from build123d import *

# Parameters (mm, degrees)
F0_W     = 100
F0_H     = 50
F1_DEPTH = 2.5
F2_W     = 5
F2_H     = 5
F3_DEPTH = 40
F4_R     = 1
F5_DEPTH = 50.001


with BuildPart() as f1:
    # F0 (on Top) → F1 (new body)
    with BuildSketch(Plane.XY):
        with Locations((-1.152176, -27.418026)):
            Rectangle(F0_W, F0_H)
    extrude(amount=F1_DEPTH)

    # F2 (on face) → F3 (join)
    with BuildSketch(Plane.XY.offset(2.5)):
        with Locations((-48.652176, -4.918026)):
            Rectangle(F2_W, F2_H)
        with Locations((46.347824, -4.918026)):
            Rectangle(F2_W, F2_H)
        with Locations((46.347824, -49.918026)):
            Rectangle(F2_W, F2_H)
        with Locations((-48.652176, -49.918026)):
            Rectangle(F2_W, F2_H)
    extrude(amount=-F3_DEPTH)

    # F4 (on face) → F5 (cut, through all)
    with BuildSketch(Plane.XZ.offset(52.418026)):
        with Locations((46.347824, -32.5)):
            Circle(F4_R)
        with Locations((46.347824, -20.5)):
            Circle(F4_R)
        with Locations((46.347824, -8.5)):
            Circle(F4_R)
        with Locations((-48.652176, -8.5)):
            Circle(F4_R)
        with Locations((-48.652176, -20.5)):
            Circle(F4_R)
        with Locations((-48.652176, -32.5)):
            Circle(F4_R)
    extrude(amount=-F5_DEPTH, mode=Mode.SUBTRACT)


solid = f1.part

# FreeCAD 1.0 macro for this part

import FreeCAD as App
import Part
import Sketcher
from FreeCAD import Vector
Q = App.Units.Quantity

doc = App.newDocument("Part")
body = doc.addObject("PartDesign::Body", "Body")

# Sketch on XY plane
sketch1 = body.newObject("Sketcher::SketchObject", "Sketch")
sketch1.AttachmentSupport = (doc.getObject("XY_Plane"), [""])
sketch1.MapMode = "FlatFace"
sketch1.addGeometry(Part.LineSegment(Vector(-51, -2, 0), Vector(-51, -52, 0)), False)
sketch1.addGeometry(Part.LineSegment(Vector(-51, -52, 0), Vector(49, -52, 0)), False)
sketch1.addGeometry(Part.LineSegment(Vector(49, -52, 0), Vector(49, -2, 0)), False)
sketch1.addGeometry(Part.LineSegment(Vector(49, -2, 0), Vector(-51, -2, 0)), False)
sketch1.addConstraint(Sketcher.Constraint("Coincident", 0, 2, 1, 1))
sketch1.addConstraint(Sketcher.Constraint("Coincident", 1, 2, 2, 1))
sketch1.addConstraint(Sketcher.Constraint("Coincident", 2, 2, 3, 1))
sketch1.addConstraint(Sketcher.Constraint("Coincident", 3, 2, 0, 1))
sketch1.addConstraint(Sketcher.Constraint("Vertical", 0))
sketch1.addConstraint(Sketcher.Constraint("Horizontal", 1))
sketch1.addConstraint(Sketcher.Constraint("Vertical", 2))
sketch1.addConstraint(Sketcher.Constraint("Horizontal", 3))
sketch1.addConstraint(Sketcher.Constraint("DistanceX", 1, 1, 1, 2, Q("100 mm")))
sketch1.addConstraint(Sketcher.Constraint("DistanceY", 0, 2, 0, 1, Q("50 mm")))
sketch1.addConstraint(Sketcher.Constraint("DistanceX", 0, 2, -1, 1, Q("51.152176 mm")))
sketch1.addConstraint(Sketcher.Constraint("DistanceY", 0, 2, -1, 1, Q("52.418026 mm")))
pad1 = body.newObject("PartDesign::Pad", "Pad")
pad1.Profile = sketch1
pad1.Length = 2.5

# Sketch on XY plane
sketch2 = body.newObject("Sketcher::SketchObject", "Sketch001")
sketch2.AttachmentSupport = (doc.getObject("XY_Plane"), [""])
sketch2.MapMode = "FlatFace"
sketch2.AttachmentOffset = App.Placement(Vector(0, 0, 2.5), App.Rotation())
sketch2.addGeometry(Part.LineSegment(Vector(-51, -2, 0), Vector(-51, -7, 0)), False)
sketch2.addGeometry(Part.LineSegment(Vector(-51, -7, 0), Vector(-46, -7, 0)), False)
sketch2.addGeometry(Part.LineSegment(Vector(-46, -7, 0), Vector(-46, -2, 0)), False)
sketch2.addGeometry(Part.LineSegment(Vector(-46, -2, 0), Vector(-51, -2, 0)), False)
sketch2.addGeometry(Part.LineSegment(Vector(44, -2, 0), Vector(44, -7, 0)), False)
sketch2.addGeometry(Part.LineSegment(Vector(44, -7, 0), Vector(49, -7, 0)), False)
sketch2.addGeometry(Part.LineSegment(Vector(49, -7, 0), Vector(49, -2, 0)), False)
sketch2.addGeometry(Part.LineSegment(Vector(49, -2, 0), Vector(44, -2, 0)), False)
sketch2.addGeometry(Part.LineSegment(Vector(44, -47, 0), Vector(44, -52, 0)), False)
sketch2.addGeometry(Part.LineSegment(Vector(44, -52, 0), Vector(49, -52, 0)), False)
sketch2.addGeometry(Part.LineSegment(Vector(49, -52, 0), Vector(49, -47, 0)), False)
sketch2.addGeometry(Part.LineSegment(Vector(49, -47, 0), Vector(44, -47, 0)), False)
sketch2.addGeometry(Part.LineSegment(Vector(-51, -47, 0), Vector(-51, -52, 0)), False)
sketch2.addGeometry(Part.LineSegment(Vector(-51, -52, 0), Vector(-46, -52, 0)), False)
sketch2.addGeometry(Part.LineSegment(Vector(-46, -52, 0), Vector(-46, -47, 0)), False)
sketch2.addGeometry(Part.LineSegment(Vector(-46, -47, 0), Vector(-51, -47, 0)), False)
sketch2.addConstraint(Sketcher.Constraint("Coincident", 0, 2, 1, 1))
sketch2.addConstraint(Sketcher.Constraint("Coincident", 1, 2, 2, 1))
sketch2.addConstraint(Sketcher.Constraint("Coincident", 2, 2, 3, 1))
sketch2.addConstraint(Sketcher.Constraint("Coincident", 3, 2, 0, 1))
sketch2.addConstraint(Sketcher.Constraint("Coincident", 4, 2, 5, 1))
sketch2.addConstraint(Sketcher.Constraint("Coincident", 5, 2, 6, 1))
sketch2.addConstraint(Sketcher.Constraint("Coincident", 6, 2, 7, 1))
sketch2.addConstraint(Sketcher.Constraint("Coincident", 7, 2, 4, 1))
sketch2.addConstraint(Sketcher.Constraint("Coincident", 8, 2, 9, 1))
sketch2.addConstraint(Sketcher.Constraint("Coincident", 9, 2, 10, 1))
sketch2.addConstraint(Sketcher.Constraint("Coincident", 10, 2, 11, 1))
sketch2.addConstraint(Sketcher.Constraint("Coincident", 11, 2, 8, 1))
sketch2.addConstraint(Sketcher.Constraint("Coincident", 12, 2, 13, 1))
sketch2.addConstraint(Sketcher.Constraint("Coincident", 13, 2, 14, 1))
sketch2.addConstraint(Sketcher.Constraint("Coincident", 14, 2, 15, 1))
sketch2.addConstraint(Sketcher.Constraint("Coincident", 15, 2, 12, 1))
sketch2.addConstraint(Sketcher.Constraint("Vertical", 0))
sketch2.addConstraint(Sketcher.Constraint("Horizontal", 1))
sketch2.addConstraint(Sketcher.Constraint("Vertical", 2))
sketch2.addConstraint(Sketcher.Constraint("Horizontal", 3))
sketch2.addConstraint(Sketcher.Constraint("Vertical", 4))
sketch2.addConstraint(Sketcher.Constraint("Horizontal", 5))
sketch2.addConstraint(Sketcher.Constraint("Vertical", 6))
sketch2.addConstraint(Sketcher.Constraint("Horizontal", 7))
sketch2.addConstraint(Sketcher.Constraint("Vertical", 8))
sketch2.addConstraint(Sketcher.Constraint("Horizontal", 9))
sketch2.addConstraint(Sketcher.Constraint("Vertical", 10))
sketch2.addConstraint(Sketcher.Constraint("Horizontal", 11))
sketch2.addConstraint(Sketcher.Constraint("Vertical", 12))
sketch2.addConstraint(Sketcher.Constraint("Horizontal", 13))
sketch2.addConstraint(Sketcher.Constraint("Vertical", 14))
sketch2.addConstraint(Sketcher.Constraint("Horizontal", 15))
sketch2.addConstraint(Sketcher.Constraint("Horizontal", 1, 2, 4, 2))
sketch2.addConstraint(Sketcher.Constraint("Horizontal", 3, 2, 6, 2))
sketch2.addConstraint(Sketcher.Constraint("Horizontal", 9, 2, 12, 2))
sketch2.addConstraint(Sketcher.Constraint("Horizontal", 11, 2, 14, 2))
sketch2.addConstraint(Sketcher.Constraint("Vertical", 7, 2, 8, 2))
sketch2.addConstraint(Sketcher.Constraint("Vertical", 6, 2, 9, 2))
sketch2.addConstraint(Sketcher.Constraint("Vertical", 3, 2, 12, 2))
sketch2.addConstraint(Sketcher.Constraint("Vertical", 2, 2, 13, 2))
sketch2.addConstraint(Sketcher.Constraint("Equal", 3, 5))
sketch2.addConstraint(Sketcher.Constraint("Equal", 15, 0))
sketch2.addConstraint(Sketcher.Constraint("Equal", 6, 8))
sketch2.addConstraint(Sketcher.Constraint("DistanceX", 1, 1, 1, 2, Q("5 mm")))
sketch2.addConstraint(Sketcher.Constraint("DistanceX", 1, 2, 4, 2, Q("90 mm")))
sketch2.addConstraint(Sketcher.Constraint("DistanceY", 8, 2, 4, 2, Q("45 mm")))
sketch2.addConstraint(Sketcher.Constraint("DistanceX", 0, 2, -1, 1, Q("51.152176 mm")))
sketch2.addConstraint(Sketcher.Constraint("DistanceY", 0, 2, -1, 1, Q("7.418026 mm")))
pad2 = body.newObject("PartDesign::Pad", "Pad001")
pad2.Profile = sketch2
pad2.Length = 40
pad2.Reversed = True

# Sketch on XZ plane
sketch3 = body.newObject("Sketcher::SketchObject", "Sketch002")
sketch3.AttachmentSupport = (doc.getObject("XZ_Plane"), [""])
sketch3.MapMode = "FlatFace"
sketch3.AttachmentOffset = App.Placement(Vector(0, 0, 52.418026), App.Rotation())
sketch3.addGeometry(Part.Circle(Vector(46.3, -32.5, 0), Vector(0, 0, 1), 1), False)
sketch3.addGeometry(Part.Circle(Vector(46.3, -20.5, 0), Vector(0, 0, 1), 1), False)
sketch3.addGeometry(Part.Circle(Vector(46.3, -8.5, 0), Vector(0, 0, 1), 1), False)
sketch3.addGeometry(Part.Circle(Vector(-48.7, -8.5, 0), Vector(0, 0, 1), 1), False)
sketch3.addGeometry(Part.Circle(Vector(-48.7, -20.5, 0), Vector(0, 0, 1), 1), False)
sketch3.addGeometry(Part.Circle(Vector(-48.7, -32.5, 0), Vector(0, 0, 1), 1), False)
sketch3.addConstraint(Sketcher.Constraint("Equal", 0, 1))
sketch3.addConstraint(Sketcher.Constraint("Equal", 1, 2))
sketch3.addConstraint(Sketcher.Constraint("Equal", 2, 3))
sketch3.addConstraint(Sketcher.Constraint("Equal", 3, 4))
sketch3.addConstraint(Sketcher.Constraint("Equal", 4, 5))
sketch3.addConstraint(Sketcher.Constraint("Horizontal", 2, 3, 3, 3))
sketch3.addConstraint(Sketcher.Constraint("Horizontal", 1, 3, 4, 3))
sketch3.addConstraint(Sketcher.Constraint("Horizontal", 0, 3, 5, 3))
sketch3.addConstraint(Sketcher.Constraint("Vertical", 0, 3, 1, 3))
sketch3.addConstraint(Sketcher.Constraint("Vertical", 1, 3, 2, 3))
sketch3.addConstraint(Sketcher.Constraint("Vertical", 3, 3, 4, 3))
sketch3.addConstraint(Sketcher.Constraint("Vertical", 4, 3, 5, 3))
sketch3.addConstraint(Sketcher.Constraint("Diameter", 0, Q("2 mm")))
sketch3.addConstraint(Sketcher.Constraint("DistanceY", 0, 3, 1, 3, Q("12 mm")))
sketch3.addConstraint(Sketcher.Constraint("DistanceY", 1, 3, 2, 3, Q("12 mm")))
sketch3.addConstraint(Sketcher.Constraint("DistanceX", 3, 3, 2, 3, Q("95 mm")))
sketch3.addConstraint(Sketcher.Constraint("DistanceY", 0, 3, -1, 1, Q("32.5 mm")))
sketch3.addConstraint(Sketcher.Constraint("DistanceX", -1, 1, 0, 3, Q("46.347824 mm")))
pocket1 = body.newObject("PartDesign::Pocket", "Pocket")
pocket1.Profile = sketch3
pocket1.Type = "ThroughAll"

doc.recompute()
